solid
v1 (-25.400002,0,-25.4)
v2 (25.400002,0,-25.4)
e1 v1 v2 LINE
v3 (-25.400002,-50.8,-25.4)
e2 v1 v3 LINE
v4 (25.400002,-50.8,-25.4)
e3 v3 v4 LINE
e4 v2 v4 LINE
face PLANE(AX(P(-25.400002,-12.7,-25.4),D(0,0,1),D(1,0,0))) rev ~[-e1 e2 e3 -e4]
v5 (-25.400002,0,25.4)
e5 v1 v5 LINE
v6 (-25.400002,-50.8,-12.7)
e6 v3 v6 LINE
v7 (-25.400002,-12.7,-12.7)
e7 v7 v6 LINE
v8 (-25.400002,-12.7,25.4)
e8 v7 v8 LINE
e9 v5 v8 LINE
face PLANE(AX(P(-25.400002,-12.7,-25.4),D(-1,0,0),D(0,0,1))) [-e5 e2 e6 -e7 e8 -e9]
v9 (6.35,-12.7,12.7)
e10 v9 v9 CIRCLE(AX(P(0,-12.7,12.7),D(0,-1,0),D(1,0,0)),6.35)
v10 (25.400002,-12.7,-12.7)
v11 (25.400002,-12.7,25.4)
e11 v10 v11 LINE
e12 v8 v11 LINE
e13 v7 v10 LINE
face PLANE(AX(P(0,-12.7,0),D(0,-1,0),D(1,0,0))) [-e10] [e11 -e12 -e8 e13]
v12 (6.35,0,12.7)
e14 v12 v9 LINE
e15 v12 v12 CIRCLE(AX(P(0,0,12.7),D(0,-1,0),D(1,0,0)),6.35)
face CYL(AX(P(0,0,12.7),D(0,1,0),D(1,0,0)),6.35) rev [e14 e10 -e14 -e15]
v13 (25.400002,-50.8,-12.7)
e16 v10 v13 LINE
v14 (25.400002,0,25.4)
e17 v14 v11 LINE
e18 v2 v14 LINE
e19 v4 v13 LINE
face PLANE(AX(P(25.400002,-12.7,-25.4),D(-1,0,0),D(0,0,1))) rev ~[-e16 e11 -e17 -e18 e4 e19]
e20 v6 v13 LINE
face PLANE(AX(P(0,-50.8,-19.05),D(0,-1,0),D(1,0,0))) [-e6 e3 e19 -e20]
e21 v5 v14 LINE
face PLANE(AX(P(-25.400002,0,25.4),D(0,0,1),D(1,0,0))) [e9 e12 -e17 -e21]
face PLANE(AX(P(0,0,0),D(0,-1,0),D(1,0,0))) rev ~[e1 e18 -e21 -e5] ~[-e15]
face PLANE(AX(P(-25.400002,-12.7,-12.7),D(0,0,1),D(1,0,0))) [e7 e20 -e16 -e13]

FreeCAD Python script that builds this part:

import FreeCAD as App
import Part
import Sketcher

V = App.Vector
Q = App.Units.Quantity


def add_polygon(sketch, points):
    """Adds a closed chain of lines whose ends are joined by coincident constraints."""
    first, n = sketch.GeometryCount, len(points)
    for a, b in zip(points, points[1:] + points[:1]):
        sketch.addGeometry(Part.LineSegment(App.Vector(*a, 0), App.Vector(*b, 0)), False)
    for i in range(n):
        sketch.addConstraint(Sketcher.Constraint("Coincident", first + i, 2, first + (i + 1) % n, 1))

doc = App.newDocument("Part")
body = doc.addObject("PartDesign::Body", "Body")

# Sketch on XZ plane
sketch1 = body.newObject("Sketcher::SketchObject", "Sketch")
sketch1.AttachmentSupport = (doc.getObject("XZ_Plane"), [""])
sketch1.MapMode = "FlatFace"
add_polygon(sketch1, [(-25, 25), (-25, -25), (25, -25), (25, 25)])  # lines 0-3
sketch1.addGeometry(Part.Circle(V(0, 13, 0), V(0, 0, 1), 6), False)  # 4
sketch1.addConstraint([
    Sketcher.Constraint("Vertical", 0),
    Sketcher.Constraint("Horizontal", 1),
    Sketcher.Constraint("Vertical", 2),
    Sketcher.Constraint("Horizontal", 3),
    Sketcher.Constraint("Symmetric", 0, 2, 2, 2, -1, 1),
    Sketcher.Constraint("PointOnObject", 4, 3, -2),
    Sketcher.Constraint("Diameter", 4, Q("0.5 in")),
    Sketcher.Constraint("DistanceX", 1, 1, 1, 2, Q("2.0000002 in")),
    Sketcher.Constraint("DistanceY", 0, 2, 0, 1, Q("2 in")),
    Sketcher.Constraint("DistanceY", -1, 1, 4, 3, Q("0.5 in")),
])
pad1 = body.newObject("PartDesign::Pad", "Pad")
pad1.Profile = sketch1
pad1.Length = Q("0.5 in")

# Sketch on XZ plane
sketch2 = body.newObject("Sketcher::SketchObject", "Sketch001")
sketch2.AttachmentSupport = (doc.getObject("XZ_Plane"), [""])
sketch2.MapMode = "FlatFace"
sketch2.AttachmentOffset = App.Placement(V(0, 0, 0.5 * 25.4), App.Rotation())
add_polygon(sketch2, [(-25, -13), (-25, -25), (25, -25), (25, -13)])  # lines 0-3
sketch2.addConstraint([
    Sketcher.Constraint("Vertical", 0),
    Sketcher.Constraint("Horizontal", 1),
    Sketcher.Constraint("Vertical", 2),
    Sketcher.Constraint("Horizontal", 3),
    Sketcher.Constraint("DistanceX", 1, 1, 1, 2, Q("2.0000002 in")),
    Sketcher.Constraint("DistanceY", 0, 2, 0, 1, Q("0.5 in")),
    Sketcher.Constraint("DistanceX", 0, 2, -1, 1, Q("1.0000001 in")),
    Sketcher.Constraint("DistanceY", 0, 2, -1, 1, Q("1 in")),
])
pad2 = body.newObject("PartDesign::Pad", "Pad001")
pad2.Profile = sketch2
pad2.Length = Q("1.5 in")

doc.recompute()
